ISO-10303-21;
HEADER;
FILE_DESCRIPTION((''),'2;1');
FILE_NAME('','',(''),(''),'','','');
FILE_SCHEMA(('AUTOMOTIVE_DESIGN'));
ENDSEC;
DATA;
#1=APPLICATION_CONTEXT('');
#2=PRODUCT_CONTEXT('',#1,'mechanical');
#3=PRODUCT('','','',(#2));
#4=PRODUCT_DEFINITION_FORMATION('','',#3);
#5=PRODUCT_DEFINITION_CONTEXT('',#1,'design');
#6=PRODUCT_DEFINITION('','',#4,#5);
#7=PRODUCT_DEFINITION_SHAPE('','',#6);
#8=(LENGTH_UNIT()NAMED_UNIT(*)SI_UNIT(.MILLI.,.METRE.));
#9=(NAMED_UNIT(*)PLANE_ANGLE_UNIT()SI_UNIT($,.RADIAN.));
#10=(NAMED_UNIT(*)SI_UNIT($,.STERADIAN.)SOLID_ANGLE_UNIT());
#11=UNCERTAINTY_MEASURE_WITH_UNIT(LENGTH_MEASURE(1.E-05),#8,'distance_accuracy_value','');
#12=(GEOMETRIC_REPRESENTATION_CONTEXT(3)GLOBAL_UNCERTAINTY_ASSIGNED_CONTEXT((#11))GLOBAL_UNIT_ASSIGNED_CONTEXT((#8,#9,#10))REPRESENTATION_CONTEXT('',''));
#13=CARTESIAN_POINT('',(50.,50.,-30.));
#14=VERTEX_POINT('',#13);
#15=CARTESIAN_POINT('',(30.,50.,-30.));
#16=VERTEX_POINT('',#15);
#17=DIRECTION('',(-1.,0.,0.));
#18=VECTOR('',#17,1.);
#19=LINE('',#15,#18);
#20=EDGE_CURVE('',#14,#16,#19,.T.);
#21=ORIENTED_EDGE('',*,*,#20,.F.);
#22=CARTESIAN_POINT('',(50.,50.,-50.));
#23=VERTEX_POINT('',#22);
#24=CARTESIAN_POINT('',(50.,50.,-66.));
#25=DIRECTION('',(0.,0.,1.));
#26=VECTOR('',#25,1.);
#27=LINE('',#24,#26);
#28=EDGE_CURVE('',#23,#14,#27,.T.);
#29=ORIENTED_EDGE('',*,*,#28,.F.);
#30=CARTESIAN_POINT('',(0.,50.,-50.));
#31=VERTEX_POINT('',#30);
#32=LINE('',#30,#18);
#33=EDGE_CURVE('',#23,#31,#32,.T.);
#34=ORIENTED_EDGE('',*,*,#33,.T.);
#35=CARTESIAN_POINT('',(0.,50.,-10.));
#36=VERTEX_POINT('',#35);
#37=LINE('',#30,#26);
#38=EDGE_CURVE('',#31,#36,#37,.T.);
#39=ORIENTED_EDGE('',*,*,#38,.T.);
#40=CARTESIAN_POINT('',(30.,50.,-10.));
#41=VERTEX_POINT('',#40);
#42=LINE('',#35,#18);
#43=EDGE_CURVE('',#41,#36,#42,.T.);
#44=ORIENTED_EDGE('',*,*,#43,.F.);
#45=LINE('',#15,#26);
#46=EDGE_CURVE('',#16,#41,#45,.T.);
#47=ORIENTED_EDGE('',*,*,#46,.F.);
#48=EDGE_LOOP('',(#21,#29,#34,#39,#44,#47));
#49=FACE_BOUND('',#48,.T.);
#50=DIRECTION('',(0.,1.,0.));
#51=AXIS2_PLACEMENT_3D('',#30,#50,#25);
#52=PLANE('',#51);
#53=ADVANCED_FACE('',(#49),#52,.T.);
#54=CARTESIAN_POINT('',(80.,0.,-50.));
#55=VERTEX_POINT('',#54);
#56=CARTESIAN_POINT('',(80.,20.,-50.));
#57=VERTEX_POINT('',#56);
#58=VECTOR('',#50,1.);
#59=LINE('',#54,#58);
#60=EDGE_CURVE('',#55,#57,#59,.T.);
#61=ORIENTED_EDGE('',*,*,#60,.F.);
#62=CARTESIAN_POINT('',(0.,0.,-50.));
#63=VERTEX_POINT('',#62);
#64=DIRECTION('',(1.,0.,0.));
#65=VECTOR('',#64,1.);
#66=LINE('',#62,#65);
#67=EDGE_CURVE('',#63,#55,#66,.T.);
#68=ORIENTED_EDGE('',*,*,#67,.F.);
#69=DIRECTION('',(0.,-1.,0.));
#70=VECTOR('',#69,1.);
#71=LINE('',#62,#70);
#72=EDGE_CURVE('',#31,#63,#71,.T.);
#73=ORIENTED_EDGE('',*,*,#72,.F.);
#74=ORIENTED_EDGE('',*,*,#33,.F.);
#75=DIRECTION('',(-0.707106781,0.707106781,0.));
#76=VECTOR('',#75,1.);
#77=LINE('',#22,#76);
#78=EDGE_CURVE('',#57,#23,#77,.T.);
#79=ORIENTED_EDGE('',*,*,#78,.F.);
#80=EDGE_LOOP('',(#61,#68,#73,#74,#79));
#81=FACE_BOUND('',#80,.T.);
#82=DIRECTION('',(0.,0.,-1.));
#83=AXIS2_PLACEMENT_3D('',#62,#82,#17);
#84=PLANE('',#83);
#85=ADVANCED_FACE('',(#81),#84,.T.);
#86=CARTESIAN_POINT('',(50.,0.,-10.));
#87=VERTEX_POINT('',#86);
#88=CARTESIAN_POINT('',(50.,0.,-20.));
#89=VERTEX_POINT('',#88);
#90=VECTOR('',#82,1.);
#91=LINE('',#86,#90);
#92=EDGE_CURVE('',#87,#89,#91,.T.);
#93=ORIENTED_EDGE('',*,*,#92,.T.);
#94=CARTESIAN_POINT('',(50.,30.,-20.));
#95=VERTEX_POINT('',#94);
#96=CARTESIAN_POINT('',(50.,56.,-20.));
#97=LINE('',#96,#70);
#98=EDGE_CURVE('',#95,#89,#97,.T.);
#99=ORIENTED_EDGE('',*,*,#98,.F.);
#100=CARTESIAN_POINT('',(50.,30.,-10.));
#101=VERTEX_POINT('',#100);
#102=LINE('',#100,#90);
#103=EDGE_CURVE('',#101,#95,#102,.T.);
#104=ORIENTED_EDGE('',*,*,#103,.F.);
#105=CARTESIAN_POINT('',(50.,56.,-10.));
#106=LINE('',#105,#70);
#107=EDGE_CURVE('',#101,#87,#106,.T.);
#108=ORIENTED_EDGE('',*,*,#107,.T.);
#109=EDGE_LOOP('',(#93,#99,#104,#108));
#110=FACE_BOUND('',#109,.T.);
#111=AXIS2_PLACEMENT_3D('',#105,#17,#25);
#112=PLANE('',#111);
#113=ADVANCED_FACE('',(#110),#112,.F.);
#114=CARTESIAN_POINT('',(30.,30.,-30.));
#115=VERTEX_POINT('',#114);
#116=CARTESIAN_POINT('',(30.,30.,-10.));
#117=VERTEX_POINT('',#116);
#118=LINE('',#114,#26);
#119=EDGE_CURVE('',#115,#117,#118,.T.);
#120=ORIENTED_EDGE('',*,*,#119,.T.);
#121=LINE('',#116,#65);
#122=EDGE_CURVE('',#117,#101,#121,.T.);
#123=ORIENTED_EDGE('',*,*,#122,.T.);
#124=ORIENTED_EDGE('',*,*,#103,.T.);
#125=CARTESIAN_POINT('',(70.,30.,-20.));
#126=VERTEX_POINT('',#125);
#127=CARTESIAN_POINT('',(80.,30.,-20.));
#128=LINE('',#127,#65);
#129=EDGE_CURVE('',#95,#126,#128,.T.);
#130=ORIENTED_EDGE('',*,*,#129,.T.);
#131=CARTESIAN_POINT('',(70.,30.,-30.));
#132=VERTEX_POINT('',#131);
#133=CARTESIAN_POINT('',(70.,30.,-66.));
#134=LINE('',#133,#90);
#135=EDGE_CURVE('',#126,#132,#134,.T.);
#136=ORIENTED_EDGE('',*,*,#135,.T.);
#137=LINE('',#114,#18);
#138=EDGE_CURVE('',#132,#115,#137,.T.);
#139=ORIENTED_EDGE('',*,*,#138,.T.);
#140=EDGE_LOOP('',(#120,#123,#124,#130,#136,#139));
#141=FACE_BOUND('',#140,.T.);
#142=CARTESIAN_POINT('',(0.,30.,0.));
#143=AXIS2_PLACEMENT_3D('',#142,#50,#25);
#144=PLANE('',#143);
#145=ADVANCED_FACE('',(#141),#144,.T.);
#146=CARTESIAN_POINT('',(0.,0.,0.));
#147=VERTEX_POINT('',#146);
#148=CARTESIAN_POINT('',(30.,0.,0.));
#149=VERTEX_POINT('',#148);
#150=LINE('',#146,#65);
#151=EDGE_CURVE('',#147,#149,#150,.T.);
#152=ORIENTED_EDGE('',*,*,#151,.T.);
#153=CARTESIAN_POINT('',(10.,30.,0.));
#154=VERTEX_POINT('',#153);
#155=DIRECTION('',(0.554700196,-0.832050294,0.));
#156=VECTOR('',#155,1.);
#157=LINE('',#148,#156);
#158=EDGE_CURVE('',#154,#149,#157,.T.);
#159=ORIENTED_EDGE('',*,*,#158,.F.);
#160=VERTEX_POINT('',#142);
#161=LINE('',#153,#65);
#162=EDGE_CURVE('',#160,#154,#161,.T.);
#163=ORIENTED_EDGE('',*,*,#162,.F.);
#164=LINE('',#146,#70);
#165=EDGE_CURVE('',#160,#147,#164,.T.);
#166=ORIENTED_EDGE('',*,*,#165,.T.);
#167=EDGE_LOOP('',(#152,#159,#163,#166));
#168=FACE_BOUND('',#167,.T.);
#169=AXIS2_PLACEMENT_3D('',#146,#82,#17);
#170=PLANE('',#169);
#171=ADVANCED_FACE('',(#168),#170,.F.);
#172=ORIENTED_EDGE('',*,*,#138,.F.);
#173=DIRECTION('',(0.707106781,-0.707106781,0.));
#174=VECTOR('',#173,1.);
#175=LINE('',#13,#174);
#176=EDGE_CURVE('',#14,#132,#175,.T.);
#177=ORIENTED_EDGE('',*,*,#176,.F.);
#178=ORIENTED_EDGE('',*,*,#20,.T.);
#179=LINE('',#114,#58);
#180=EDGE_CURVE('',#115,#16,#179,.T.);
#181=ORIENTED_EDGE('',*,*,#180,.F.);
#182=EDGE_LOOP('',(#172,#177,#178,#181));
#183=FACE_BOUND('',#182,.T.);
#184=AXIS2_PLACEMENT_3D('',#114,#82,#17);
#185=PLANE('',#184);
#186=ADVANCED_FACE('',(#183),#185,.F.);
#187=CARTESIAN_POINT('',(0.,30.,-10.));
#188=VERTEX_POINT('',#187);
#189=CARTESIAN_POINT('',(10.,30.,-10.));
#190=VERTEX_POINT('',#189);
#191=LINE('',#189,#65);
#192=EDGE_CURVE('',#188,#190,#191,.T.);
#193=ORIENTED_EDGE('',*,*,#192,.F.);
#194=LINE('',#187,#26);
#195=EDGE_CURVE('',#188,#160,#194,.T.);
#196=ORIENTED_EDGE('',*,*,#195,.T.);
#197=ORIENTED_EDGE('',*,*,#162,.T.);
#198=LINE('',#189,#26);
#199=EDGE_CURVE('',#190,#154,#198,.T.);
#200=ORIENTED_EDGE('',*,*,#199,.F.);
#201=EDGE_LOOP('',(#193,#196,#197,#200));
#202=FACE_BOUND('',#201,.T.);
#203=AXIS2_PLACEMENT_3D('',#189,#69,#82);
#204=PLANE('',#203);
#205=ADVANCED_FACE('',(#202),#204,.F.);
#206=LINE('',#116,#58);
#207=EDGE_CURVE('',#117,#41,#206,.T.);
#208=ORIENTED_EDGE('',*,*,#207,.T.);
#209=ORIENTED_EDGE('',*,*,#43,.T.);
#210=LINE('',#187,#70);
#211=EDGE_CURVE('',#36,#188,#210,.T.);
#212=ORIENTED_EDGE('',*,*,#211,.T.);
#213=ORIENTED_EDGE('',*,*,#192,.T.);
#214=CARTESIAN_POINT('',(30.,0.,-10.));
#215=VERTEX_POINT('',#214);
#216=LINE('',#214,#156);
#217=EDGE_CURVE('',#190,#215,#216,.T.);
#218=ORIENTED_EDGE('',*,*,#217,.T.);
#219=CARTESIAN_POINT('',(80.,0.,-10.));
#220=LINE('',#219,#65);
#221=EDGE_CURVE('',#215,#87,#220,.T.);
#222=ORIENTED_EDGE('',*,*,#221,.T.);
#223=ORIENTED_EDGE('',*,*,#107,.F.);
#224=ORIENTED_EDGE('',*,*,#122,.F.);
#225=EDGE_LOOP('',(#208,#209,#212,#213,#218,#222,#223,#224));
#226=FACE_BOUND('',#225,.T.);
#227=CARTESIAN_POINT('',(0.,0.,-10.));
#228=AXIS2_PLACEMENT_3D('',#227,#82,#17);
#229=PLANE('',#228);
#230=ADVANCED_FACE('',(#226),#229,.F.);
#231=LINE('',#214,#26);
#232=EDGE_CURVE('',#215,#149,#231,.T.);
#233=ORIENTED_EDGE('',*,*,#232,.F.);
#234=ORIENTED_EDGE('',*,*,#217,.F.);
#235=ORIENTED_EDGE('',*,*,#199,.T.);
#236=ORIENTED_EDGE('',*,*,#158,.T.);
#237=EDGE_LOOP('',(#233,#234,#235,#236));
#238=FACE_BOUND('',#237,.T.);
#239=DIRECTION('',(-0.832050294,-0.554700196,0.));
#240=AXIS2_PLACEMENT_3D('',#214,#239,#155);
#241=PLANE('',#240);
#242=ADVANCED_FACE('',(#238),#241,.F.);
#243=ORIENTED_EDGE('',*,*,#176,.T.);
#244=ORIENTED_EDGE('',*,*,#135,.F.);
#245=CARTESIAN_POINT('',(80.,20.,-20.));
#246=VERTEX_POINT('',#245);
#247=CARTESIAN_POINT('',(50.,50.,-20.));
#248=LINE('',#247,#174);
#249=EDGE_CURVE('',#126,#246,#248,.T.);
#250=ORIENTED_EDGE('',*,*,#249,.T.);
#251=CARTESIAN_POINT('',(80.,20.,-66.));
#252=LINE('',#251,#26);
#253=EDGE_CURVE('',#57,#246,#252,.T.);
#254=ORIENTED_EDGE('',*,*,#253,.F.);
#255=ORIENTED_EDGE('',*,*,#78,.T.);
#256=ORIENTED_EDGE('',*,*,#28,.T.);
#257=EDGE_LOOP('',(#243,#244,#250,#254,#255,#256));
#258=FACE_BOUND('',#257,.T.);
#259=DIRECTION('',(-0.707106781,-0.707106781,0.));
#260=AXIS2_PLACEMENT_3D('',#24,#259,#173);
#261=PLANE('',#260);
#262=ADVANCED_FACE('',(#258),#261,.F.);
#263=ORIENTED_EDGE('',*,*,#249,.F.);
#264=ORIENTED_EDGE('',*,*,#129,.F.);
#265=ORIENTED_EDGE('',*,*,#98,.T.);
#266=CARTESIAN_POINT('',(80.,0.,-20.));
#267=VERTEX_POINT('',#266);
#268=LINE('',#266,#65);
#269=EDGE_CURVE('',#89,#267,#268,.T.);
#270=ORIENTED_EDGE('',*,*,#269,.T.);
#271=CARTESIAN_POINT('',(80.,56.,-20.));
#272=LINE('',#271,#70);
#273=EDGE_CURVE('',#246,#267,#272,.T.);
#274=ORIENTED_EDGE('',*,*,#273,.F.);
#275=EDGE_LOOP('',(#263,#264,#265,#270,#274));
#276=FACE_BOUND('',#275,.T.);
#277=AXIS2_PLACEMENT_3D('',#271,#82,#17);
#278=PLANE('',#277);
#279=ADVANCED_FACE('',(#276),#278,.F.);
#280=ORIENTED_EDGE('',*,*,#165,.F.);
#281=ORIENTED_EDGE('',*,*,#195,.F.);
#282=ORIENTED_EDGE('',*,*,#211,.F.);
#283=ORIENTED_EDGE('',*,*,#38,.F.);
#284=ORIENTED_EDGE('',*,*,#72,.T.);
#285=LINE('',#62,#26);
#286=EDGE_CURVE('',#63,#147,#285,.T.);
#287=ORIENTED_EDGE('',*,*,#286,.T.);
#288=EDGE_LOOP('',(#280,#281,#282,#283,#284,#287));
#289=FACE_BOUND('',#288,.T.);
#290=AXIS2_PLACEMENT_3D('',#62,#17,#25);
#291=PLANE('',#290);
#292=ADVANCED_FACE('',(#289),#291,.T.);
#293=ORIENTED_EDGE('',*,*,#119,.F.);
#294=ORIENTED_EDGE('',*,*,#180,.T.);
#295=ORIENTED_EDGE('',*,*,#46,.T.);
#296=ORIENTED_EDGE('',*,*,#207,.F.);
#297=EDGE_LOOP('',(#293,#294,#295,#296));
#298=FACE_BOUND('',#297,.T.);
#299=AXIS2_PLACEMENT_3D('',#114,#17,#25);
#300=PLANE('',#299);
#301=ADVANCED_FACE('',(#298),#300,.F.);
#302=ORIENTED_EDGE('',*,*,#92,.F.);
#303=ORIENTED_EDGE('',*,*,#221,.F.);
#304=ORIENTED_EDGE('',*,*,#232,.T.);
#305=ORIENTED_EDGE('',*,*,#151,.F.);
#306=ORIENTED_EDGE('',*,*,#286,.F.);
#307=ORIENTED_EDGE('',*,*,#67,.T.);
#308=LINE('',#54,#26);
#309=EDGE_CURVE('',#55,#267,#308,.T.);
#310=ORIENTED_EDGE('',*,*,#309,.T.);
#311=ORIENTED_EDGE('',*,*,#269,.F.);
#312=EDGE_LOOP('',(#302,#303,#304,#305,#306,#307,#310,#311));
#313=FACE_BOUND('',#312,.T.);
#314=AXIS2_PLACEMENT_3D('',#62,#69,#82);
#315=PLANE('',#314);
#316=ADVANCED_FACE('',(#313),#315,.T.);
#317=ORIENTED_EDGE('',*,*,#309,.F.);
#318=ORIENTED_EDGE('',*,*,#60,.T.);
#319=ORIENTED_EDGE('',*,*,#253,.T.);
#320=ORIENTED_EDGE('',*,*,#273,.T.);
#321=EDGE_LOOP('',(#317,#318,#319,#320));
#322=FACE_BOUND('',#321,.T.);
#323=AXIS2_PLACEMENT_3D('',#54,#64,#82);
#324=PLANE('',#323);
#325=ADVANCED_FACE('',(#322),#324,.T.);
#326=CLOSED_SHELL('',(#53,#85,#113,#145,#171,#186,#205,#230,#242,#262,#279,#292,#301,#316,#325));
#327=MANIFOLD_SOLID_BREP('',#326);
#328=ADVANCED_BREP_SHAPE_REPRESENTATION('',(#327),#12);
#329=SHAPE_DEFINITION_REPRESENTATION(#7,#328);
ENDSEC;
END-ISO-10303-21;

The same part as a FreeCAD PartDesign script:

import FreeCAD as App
import Part
import Sketcher
Q = App.Units.Quantity

doc = App.newDocument("Part")
body = doc.addObject("PartDesign::Body", "Body")

sketch1 = doc.addObject("Sketcher::SketchObject", "Sketch")
body.addObject(sketch1)
sketch1.AttachmentSupport = (doc.XY_Plane, [""])
sketch1.MapMode = "FlatFace"
sketch1.addGeometry([
    Part.LineSegment(App.Vector(0, 50, 0), App.Vector(0, 0, 0)),
    Part.LineSegment(App.Vector(0, 0, 0), App.Vector(80, 0, 0)),
    Part.LineSegment(App.Vector(80, 0, 0), App.Vector(80, 50, 0)),
    Part.LineSegment(App.Vector(80, 50, 0), App.Vector(0, 50, 0)),
], False)
sketch1.addConstraint([
    Sketcher.Constraint("Coincident", 0, 2, 1, 1),
    Sketcher.Constraint("Coincident", 1, 2, 2, 1),
    Sketcher.Constraint("Coincident", 2, 2, 3, 1),
    Sketcher.Constraint("Coincident", 3, 2, 0, 1),
    Sketcher.Constraint("Vertical", 0),
    Sketcher.Constraint("Horizontal", 1),
    Sketcher.Constraint("Vertical", 2),
    Sketcher.Constraint("Horizontal", 3),
    Sketcher.Constraint("Coincident", 0, 2, -1, 1),
    Sketcher.Constraint("DistanceX", 1, 1, 1, 2, Q("80 mm")),
    Sketcher.Constraint("DistanceY", 0, 2, 0, 1, Q("50 mm")),
])
pad1 = doc.addObject("PartDesign::Pad", "Pad")
body.addObject(pad1)
pad1.Profile = sketch1
pad1.Length = 50
pad1.Reversed = True

sketch2 = doc.addObject("Sketcher::SketchObject", "Sketch001")
body.addObject(sketch2)
sketch2.AttachmentSupport = (doc.XY_Plane, [""])
sketch2.MapMode = "FlatFace"
sketch2.addGeometry([
    Part.LineSegment(App.Vector(0, 50, 0), App.Vector(0, 30, 0)),
    Part.LineSegment(App.Vector(0, 30, 0), App.Vector(10, 30, 0)),
    Part.LineSegment(App.Vector(10, 30, 0), App.Vector(30, 0, 0)),
    Part.LineSegment(App.Vector(30, 0, 0), App.Vector(80, 0, 0)),
    Part.LineSegment(App.Vector(80, 0, 0), App.Vector(80, 50, 0)),
    Part.LineSegment(App.Vector(80, 50, 0), App.Vector(0, 50, 0)),
], False)
sketch2.addConstraint([
    Sketcher.Constraint("Coincident", 0, 2, 1, 1),
    Sketcher.Constraint("Coincident", 1, 2, 2, 1),
    Sketcher.Constraint("Coincident", 2, 2, 3, 1),
    Sketcher.Constraint("Coincident", 3, 2, 4, 1),
    Sketcher.Constraint("Coincident", 4, 2, 5, 1),
    Sketcher.Constraint("Coincident", 5, 2, 0, 1),
    Sketcher.Constraint("Vertical", 0),
    Sketcher.Constraint("Horizontal", 1),
    Sketcher.Constraint("Horizontal", 3),
    Sketcher.Constraint("Vertical", 4),
    Sketcher.Constraint("Horizontal", 5),
    Sketcher.Constraint("PointOnObject", 0, 2, -2),
    Sketcher.Constraint("PointOnObject", 2, 2, -1),
    Sketcher.Constraint("Equal", 3, 4),
    Sketcher.Constraint("DistanceX", 1, 1, 1, 2, Q("10 mm")),
    Sketcher.Constraint("DistanceX", 3, 1, 3, 2, Q("50 mm")),
    Sketcher.Constraint("DistanceX", 5, 2, 5, 1, Q("80 mm")),
    Sketcher.Constraint("DistanceY", 0, 2, 0, 1, Q("20 mm")),
])
pocket1 = doc.addObject("PartDesign::Pocket", "Pocket")
body.addObject(pocket1)
pocket1.Profile = sketch2
pocket1.Length = 10

sketch3 = doc.addObject("Sketcher::SketchObject", "Sketch002")
body.addObject(sketch3)
sketch3.AttachmentSupport = (doc.XY_Plane, [""])
sketch3.MapMode = "FlatFace"
sketch3.AttachmentOffset = App.Placement(App.Vector(0, 0, -10), App.Rotation())
sketch3.addGeometry([
    Part.LineSegment(App.Vector(50, 50, 0), App.Vector(80, 20, 0)),
    Part.LineSegment(App.Vector(80, 20, 0), App.Vector(80, 50, 0)),
    Part.LineSegment(App.Vector(80, 50, 0), App.Vector(50, 50, 0)),
], False)
sketch3.addConstraint([
    Sketcher.Constraint("Coincident", 0, 2, 1, 1),
    Sketcher.Constraint("Coincident", 1, 2, 2, 1),
    Sketcher.Constraint("Coincident", 2, 2, 0, 1),
    Sketcher.Constraint("Vertical", 1),
    Sketcher.Constraint("Horizontal", 2),
    Sketcher.Constraint("Equal", 2, 1),
    Sketcher.Constraint("DistanceX", 2, 2, 2, 1, Q("30 mm")),
    Sketcher.Constraint("DistanceX", -1, 1, 0, 2, Q("80 mm")),
    Sketcher.Constraint("DistanceY", -1, 1, 0, 2, Q("20 mm")),
])
pocket2 = doc.addObject("PartDesign::Pocket", "Pocket001")
body.addObject(pocket2)
pocket2.Profile = sketch3
pocket2.Length = 56

sketch4 = doc.addObject("Sketcher::SketchObject", "Sketch003")
body.addObject(sketch4)
sketch4.AttachmentSupport = (doc.XZ_Plane, [""])
sketch4.MapMode = "FlatFace"
sketch4.addGeometry([
    Part.LineSegment(App.Vector(50, -10, 0), App.Vector(50, -20, 0)),
    Part.LineSegment(App.Vector(50, -20, 0), App.Vector(80, -20, 0)),
    Part.LineSegment(App.Vector(80, -20, 0), App.Vector(80, -10, 0)),
    Part.LineSegment(App.Vector(80, -10, 0), App.Vector(50, -10, 0)),
], False)
sketch4.addConstraint([
    Sketcher.Constraint("Coincident", 0, 2, 1, 1),
    Sketcher.Constraint("Coincident", 1, 2, 2, 1),
    Sketcher.Constraint("Coincident", 2, 2, 3, 1),
    Sketcher.Constraint("Coincident", 3, 2, 0, 1),
    Sketcher.Constraint("Vertical", 0),
    Sketcher.Constraint("Horizontal", 1),
    Sketcher.Constraint("Vertical", 2),
    Sketcher.Constraint("Horizontal", 3),
    Sketcher.Constraint("DistanceX", 1, 1, 1, 2, Q("30 mm")),
    Sketcher.Constraint("DistanceY", 0, 2, 0, 1, Q("10 mm")),
    Sketcher.Constraint("DistanceX", -1, 1, 0, 2, Q("50 mm")),
    Sketcher.Constraint("DistanceY", 0, 2, -1, 1, Q("20 mm")),
])
pocket3 = doc.addObject("PartDesign::Pocket", "Pocket002")
body.addObject(pocket3)
pocket3.Profile = sketch4
pocket3.Length = 56

sketch5 = doc.addObject("Sketcher::SketchObject", "Sketch004")
body.addObject(sketch5)
sketch5.AttachmentSupport = (doc.XZ_Plane, [""])
sketch5.MapMode = "FlatFace"
sketch5.AttachmentOffset = App.Placement(App.Vector(0, 0, -50), App.Rotation())
sketch5.addGeometry([
    Part.LineSegment(App.Vector(30, -30, 0), App.Vector(30, -10, 0)),
    Part.LineSegment(App.Vector(30, -10, 0), App.Vector(112.141205, -10, 0)),
    Part.LineSegment(App.Vector(112.141205, -10, 0), App.Vector(112.141205, -30, 0)),
    Part.LineSegment(App.Vector(112.141205, -30, 0), App.Vector(30, -30, 0)),
], False)
sketch5.addConstraint([
    Sketcher.Constraint("Coincident", 0, 2, 1, 1),
    Sketcher.Constraint("Coincident", 1, 2, 2, 1),
    Sketcher.Constraint("Coincident", 2, 2, 3, 1),
    Sketcher.Constraint("Coincident", 3, 2, 0, 1),
    Sketcher.Constraint("Vertical", 0),
    Sketcher.Constraint("Horizontal", 1),
    Sketcher.Constraint("Vertical", 2),
    Sketcher.Constraint("Horizontal", 3),
    Sketcher.Constraint("DistanceY", 0, 1, 0, 2, Q("20 mm")),
    Sketcher.Constraint("DistanceX", -1, 1, 0, 2, Q("30 mm")),
    Sketcher.Constraint("DistanceY", 0, 2, -1, 1, Q("10 mm")),
    Sketcher.Constraint("DistanceX", 1, 1, 1, 2, Q("82.141205 mm")),
])
pocket4 = doc.addObject("PartDesign::Pocket", "Pocket003")
body.addObject(pocket4)
pocket4.Profile = sketch5
pocket4.Length = 20
pocket4.Reversed = True

doc.recompute()
